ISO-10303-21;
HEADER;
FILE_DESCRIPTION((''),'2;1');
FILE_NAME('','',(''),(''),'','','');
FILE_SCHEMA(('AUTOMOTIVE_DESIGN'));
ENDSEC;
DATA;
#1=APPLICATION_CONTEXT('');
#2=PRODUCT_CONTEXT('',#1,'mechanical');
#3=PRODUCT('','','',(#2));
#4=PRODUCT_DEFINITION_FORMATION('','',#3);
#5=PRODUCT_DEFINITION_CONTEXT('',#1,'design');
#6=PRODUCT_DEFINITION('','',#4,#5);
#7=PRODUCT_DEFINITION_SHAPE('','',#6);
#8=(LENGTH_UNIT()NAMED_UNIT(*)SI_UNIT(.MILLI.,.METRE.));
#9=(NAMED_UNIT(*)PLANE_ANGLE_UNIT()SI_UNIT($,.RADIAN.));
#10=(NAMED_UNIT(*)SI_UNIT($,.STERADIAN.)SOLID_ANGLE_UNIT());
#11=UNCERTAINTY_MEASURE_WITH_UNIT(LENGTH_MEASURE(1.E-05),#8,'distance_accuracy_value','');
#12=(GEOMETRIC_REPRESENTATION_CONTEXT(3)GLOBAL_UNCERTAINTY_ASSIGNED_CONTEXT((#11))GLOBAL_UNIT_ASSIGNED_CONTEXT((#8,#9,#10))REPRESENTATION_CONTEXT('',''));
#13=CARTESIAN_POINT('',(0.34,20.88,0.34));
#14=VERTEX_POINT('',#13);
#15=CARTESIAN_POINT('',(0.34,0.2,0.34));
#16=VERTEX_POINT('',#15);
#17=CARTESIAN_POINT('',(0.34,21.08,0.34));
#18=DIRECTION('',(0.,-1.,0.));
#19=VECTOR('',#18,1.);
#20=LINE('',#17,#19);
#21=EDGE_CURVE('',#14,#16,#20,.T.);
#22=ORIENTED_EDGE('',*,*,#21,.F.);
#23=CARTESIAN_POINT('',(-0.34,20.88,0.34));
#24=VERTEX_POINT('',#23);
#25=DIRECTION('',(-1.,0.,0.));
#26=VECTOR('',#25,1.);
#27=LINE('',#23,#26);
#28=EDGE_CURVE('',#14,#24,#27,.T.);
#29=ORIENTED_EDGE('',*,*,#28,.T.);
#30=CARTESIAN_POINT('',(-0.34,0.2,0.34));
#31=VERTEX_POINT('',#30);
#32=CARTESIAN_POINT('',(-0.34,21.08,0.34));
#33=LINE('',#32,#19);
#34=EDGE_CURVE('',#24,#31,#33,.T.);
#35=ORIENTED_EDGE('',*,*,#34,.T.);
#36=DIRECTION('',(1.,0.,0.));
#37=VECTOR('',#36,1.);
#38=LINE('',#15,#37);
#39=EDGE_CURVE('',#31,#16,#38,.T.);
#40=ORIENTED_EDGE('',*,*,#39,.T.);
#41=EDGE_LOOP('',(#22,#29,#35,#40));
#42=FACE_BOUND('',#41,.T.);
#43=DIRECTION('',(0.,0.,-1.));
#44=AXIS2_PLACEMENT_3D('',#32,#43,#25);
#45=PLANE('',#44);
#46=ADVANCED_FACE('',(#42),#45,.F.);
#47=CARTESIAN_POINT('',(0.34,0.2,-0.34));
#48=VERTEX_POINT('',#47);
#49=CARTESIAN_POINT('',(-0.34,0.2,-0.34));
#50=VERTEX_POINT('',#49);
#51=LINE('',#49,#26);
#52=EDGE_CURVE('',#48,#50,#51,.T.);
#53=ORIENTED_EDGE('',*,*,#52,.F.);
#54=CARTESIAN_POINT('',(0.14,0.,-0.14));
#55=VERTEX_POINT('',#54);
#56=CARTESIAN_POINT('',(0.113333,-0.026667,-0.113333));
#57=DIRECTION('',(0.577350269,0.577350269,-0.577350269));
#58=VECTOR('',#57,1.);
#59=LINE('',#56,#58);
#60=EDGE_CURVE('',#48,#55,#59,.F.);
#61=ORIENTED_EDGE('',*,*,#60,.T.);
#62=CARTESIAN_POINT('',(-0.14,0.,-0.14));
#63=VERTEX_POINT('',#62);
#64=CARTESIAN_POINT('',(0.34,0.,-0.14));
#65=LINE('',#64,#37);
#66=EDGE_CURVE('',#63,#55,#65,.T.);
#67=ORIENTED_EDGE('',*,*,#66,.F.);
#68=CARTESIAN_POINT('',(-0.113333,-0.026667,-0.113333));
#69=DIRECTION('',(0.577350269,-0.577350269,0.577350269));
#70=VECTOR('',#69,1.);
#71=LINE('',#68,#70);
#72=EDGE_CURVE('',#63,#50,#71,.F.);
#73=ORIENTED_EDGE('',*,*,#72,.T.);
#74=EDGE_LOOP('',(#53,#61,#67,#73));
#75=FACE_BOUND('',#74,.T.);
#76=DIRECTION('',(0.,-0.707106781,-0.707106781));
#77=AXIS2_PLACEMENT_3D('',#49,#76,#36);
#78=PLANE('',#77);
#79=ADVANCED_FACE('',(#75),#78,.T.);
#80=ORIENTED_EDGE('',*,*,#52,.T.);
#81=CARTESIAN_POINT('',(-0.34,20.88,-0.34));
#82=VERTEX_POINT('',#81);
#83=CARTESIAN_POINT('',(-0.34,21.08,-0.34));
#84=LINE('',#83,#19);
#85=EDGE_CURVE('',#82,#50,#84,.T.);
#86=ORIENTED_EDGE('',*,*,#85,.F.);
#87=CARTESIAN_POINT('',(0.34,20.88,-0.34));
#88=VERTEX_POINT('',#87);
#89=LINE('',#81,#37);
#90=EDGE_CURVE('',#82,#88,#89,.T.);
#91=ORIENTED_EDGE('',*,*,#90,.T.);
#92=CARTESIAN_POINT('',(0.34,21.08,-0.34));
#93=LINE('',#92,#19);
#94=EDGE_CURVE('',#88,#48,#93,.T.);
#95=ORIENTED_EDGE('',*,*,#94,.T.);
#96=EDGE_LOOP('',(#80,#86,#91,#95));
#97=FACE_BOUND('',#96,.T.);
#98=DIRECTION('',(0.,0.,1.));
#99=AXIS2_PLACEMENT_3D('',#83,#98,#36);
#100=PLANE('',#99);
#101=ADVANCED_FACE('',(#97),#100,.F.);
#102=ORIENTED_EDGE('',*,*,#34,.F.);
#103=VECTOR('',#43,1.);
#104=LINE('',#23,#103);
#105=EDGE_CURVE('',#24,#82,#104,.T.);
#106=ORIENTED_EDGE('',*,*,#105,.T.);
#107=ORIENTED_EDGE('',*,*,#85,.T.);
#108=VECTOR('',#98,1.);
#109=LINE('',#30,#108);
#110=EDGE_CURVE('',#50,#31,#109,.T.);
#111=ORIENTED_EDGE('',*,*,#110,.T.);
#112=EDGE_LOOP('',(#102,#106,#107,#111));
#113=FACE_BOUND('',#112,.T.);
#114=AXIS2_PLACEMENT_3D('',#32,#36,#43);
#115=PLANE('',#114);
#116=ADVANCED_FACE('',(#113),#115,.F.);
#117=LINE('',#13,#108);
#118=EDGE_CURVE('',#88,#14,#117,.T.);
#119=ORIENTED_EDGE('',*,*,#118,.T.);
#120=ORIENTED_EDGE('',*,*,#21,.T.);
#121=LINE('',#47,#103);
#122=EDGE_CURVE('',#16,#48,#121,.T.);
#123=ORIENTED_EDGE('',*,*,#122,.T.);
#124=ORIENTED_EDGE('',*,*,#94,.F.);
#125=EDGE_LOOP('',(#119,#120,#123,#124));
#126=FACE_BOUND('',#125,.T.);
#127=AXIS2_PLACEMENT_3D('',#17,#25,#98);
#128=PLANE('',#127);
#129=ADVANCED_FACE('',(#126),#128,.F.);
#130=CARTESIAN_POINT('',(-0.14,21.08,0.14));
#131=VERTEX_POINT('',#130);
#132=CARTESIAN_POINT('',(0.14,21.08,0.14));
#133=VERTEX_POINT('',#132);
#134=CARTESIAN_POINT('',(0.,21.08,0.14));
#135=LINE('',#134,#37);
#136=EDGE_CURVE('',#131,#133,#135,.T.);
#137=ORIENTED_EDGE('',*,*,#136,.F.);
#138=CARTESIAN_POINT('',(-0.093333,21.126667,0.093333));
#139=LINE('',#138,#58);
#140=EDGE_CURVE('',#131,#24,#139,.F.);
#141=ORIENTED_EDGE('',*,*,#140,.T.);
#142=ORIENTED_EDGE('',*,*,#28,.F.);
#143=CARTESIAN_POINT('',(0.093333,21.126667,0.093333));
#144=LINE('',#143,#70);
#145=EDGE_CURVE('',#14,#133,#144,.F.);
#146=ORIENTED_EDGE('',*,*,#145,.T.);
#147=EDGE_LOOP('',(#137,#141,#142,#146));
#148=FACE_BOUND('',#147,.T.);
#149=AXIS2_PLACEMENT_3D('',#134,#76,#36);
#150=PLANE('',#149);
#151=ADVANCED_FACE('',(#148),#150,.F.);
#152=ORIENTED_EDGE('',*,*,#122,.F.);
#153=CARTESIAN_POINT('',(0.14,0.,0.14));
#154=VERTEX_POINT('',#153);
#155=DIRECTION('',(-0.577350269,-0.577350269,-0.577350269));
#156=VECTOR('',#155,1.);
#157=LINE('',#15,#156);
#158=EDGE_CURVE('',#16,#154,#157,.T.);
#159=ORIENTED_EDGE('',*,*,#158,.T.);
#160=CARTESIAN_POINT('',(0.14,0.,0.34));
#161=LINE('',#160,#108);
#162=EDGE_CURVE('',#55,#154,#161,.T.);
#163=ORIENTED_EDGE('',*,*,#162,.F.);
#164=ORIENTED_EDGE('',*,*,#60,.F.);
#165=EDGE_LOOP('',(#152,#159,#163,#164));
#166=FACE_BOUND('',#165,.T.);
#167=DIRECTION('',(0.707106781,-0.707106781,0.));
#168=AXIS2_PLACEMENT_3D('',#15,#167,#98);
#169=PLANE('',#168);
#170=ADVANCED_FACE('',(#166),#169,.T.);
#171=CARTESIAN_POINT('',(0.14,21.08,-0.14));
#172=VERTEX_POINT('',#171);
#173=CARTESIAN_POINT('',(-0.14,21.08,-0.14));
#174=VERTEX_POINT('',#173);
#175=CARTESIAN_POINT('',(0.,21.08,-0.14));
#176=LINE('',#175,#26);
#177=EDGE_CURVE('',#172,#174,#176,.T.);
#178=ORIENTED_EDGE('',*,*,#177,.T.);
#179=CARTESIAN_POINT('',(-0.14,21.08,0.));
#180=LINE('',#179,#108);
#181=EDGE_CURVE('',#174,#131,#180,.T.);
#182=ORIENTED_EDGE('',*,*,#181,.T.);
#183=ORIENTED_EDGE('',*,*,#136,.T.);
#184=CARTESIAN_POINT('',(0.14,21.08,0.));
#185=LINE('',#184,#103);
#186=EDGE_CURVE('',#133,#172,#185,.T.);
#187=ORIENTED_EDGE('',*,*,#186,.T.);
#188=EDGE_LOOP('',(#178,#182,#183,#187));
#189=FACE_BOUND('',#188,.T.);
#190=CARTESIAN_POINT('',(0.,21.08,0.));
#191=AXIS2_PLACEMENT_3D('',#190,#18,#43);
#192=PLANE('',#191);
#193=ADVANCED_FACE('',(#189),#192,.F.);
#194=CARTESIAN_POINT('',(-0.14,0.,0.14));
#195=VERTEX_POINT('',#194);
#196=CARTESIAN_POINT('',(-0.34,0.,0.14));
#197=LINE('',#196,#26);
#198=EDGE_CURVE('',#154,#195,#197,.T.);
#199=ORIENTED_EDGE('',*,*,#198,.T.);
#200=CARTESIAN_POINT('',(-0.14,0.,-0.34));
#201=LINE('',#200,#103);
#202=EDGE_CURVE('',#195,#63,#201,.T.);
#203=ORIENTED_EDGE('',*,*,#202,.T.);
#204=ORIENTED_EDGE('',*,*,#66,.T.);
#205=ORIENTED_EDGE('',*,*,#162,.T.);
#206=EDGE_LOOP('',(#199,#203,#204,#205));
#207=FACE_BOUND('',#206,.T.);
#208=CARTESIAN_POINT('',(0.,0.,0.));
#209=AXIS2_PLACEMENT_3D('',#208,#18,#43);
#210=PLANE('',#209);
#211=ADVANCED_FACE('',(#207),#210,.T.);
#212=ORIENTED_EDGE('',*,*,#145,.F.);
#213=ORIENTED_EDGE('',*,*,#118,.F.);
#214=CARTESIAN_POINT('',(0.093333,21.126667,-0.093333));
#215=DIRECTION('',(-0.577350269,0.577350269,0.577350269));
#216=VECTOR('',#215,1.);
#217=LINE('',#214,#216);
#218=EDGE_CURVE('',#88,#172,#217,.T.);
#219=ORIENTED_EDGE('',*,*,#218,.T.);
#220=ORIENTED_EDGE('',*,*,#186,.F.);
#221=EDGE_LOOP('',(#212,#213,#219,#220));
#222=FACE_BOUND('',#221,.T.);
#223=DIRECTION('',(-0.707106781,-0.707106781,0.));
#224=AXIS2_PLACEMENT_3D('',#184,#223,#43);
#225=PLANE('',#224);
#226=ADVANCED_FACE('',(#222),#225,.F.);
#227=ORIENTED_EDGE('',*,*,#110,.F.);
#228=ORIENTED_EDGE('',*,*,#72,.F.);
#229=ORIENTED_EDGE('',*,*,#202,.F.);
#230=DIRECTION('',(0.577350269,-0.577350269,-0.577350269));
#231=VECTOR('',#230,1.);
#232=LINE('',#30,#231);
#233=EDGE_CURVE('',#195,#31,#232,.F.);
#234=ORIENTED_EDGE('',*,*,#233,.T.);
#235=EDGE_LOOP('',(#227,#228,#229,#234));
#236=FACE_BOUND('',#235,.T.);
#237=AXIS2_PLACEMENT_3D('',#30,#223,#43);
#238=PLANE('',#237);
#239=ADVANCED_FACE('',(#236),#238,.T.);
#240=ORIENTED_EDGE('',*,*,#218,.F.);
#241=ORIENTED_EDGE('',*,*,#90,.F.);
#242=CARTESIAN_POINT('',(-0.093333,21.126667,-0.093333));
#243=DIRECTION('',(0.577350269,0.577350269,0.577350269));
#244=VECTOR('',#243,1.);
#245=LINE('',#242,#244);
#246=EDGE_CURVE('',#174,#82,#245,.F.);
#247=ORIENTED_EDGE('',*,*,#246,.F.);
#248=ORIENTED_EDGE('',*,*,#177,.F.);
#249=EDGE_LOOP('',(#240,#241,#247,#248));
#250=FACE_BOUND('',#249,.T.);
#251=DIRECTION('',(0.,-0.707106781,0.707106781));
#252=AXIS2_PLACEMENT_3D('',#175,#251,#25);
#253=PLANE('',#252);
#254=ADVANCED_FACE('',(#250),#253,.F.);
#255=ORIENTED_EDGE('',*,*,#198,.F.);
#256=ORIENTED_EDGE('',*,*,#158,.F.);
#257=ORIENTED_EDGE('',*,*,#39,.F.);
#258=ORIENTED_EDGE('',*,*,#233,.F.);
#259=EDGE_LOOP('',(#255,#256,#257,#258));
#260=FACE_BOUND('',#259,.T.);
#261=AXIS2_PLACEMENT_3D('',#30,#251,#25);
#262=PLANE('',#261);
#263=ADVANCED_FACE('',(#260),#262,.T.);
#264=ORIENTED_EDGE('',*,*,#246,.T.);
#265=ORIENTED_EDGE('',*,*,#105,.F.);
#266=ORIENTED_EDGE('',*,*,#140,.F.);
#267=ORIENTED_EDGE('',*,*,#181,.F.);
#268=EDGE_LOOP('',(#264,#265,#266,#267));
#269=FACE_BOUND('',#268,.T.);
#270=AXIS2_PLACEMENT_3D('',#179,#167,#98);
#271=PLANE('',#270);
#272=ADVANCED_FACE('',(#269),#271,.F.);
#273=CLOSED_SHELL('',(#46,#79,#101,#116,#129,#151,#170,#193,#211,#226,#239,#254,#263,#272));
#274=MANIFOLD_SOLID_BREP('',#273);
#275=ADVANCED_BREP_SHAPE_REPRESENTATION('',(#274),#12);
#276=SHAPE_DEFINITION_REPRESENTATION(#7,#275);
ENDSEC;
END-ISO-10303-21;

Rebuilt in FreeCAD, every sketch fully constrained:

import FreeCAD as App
import Part
import Sketcher
from FreeCAD import Vector
Q = App.Units.Quantity


def edges_at(feature, points):
    """Names of the edges that pass closest to the given points."""
    edges = feature.Shape.Edges
    near = lambda p: min(range(len(edges)), key=lambda i: edges[i].distToShape(Part.Vertex(*p))[0])
    return sorted({f"Edge{near(p) + 1}" for p in points})


def add_polygon(sketch, points):
    """Adds a closed chain of lines whose ends are joined by coincident constraints."""
    first, n = sketch.GeometryCount, len(points)
    for a, b in zip(points, points[1:] + points[:1]):
        sketch.addGeometry(Part.LineSegment(App.Vector(*a, 0), App.Vector(*b, 0)), False)
    for i in range(n):
        sketch.addConstraint(Sketcher.Constraint("Coincident", first + i, 2, first + (i + 1) % n, 1))

doc = App.newDocument("Part")
params = doc.addObject("Spreadsheet::Sheet", "Params")
for row, (alias, value) in enumerate([
    ("sketch1_width", "0.68 mm"),
    ("pad1_length", "21.08 mm"),
    ("chamfer_size", "0.2 mm"),
], start=1):
    params.set(f"A{row}", alias)
    params.set(f"B{row}", "=" + value)
    params.setAlias(f"B{row}", alias)

body = doc.addObject("PartDesign::Body", "Body")

# Sketch on XZ plane
sketch1 = body.newObject("Sketcher::SketchObject", "Sketch")
sketch1.AttachmentSupport = (doc.getObject("XZ_Plane"), [""])
sketch1.MapMode = "FlatFace"
add_polygon(sketch1, [(-0.3, -0.3), (-0.3, 0.3), (0.3, 0.3), (0.3, -0.3)])  # lines 0-3
sketch1.addConstraint([
    Sketcher.Constraint("Vertical", 0),
    Sketcher.Constraint("Horizontal", 1),
    Sketcher.Constraint("Vertical", 2),
    Sketcher.Constraint("Horizontal", 3),
    Sketcher.Constraint("Symmetric", 0, 2, 2, 2, -1, 1),
    Sketcher.Constraint("Equal", 3, 0),
    Sketcher.Constraint("DistanceX", 1, 1, 1, 2, Q("0.68 mm")),
])
sketch1.setExpression("Constraints[10]", "Params.sketch1_width")
pad1 = body.newObject("PartDesign::Pad", "Pad")
pad1.Profile = sketch1
pad1.setExpression("Length", "Params.pad1_length")
pad1.Reversed = True
doc.recompute()

chamfer = body.newObject("PartDesign::Chamfer", "Chamfer")
chamfer.Base = (pad1, edges_at(pad1, [
    (-0.34, 21.08, 0),
    (0, 21.08, 0.34),
    (0.34, 21.08, 0),
    (0, 0, 0.34),
    (-0.34, 0, 0),
    (0, 0, -0.34),
    (0.34, 0, 0),
    (0, 21.08, -0.34),
]))
chamfer.setExpression("Size", "Params.chamfer_size")

doc.recompute()
